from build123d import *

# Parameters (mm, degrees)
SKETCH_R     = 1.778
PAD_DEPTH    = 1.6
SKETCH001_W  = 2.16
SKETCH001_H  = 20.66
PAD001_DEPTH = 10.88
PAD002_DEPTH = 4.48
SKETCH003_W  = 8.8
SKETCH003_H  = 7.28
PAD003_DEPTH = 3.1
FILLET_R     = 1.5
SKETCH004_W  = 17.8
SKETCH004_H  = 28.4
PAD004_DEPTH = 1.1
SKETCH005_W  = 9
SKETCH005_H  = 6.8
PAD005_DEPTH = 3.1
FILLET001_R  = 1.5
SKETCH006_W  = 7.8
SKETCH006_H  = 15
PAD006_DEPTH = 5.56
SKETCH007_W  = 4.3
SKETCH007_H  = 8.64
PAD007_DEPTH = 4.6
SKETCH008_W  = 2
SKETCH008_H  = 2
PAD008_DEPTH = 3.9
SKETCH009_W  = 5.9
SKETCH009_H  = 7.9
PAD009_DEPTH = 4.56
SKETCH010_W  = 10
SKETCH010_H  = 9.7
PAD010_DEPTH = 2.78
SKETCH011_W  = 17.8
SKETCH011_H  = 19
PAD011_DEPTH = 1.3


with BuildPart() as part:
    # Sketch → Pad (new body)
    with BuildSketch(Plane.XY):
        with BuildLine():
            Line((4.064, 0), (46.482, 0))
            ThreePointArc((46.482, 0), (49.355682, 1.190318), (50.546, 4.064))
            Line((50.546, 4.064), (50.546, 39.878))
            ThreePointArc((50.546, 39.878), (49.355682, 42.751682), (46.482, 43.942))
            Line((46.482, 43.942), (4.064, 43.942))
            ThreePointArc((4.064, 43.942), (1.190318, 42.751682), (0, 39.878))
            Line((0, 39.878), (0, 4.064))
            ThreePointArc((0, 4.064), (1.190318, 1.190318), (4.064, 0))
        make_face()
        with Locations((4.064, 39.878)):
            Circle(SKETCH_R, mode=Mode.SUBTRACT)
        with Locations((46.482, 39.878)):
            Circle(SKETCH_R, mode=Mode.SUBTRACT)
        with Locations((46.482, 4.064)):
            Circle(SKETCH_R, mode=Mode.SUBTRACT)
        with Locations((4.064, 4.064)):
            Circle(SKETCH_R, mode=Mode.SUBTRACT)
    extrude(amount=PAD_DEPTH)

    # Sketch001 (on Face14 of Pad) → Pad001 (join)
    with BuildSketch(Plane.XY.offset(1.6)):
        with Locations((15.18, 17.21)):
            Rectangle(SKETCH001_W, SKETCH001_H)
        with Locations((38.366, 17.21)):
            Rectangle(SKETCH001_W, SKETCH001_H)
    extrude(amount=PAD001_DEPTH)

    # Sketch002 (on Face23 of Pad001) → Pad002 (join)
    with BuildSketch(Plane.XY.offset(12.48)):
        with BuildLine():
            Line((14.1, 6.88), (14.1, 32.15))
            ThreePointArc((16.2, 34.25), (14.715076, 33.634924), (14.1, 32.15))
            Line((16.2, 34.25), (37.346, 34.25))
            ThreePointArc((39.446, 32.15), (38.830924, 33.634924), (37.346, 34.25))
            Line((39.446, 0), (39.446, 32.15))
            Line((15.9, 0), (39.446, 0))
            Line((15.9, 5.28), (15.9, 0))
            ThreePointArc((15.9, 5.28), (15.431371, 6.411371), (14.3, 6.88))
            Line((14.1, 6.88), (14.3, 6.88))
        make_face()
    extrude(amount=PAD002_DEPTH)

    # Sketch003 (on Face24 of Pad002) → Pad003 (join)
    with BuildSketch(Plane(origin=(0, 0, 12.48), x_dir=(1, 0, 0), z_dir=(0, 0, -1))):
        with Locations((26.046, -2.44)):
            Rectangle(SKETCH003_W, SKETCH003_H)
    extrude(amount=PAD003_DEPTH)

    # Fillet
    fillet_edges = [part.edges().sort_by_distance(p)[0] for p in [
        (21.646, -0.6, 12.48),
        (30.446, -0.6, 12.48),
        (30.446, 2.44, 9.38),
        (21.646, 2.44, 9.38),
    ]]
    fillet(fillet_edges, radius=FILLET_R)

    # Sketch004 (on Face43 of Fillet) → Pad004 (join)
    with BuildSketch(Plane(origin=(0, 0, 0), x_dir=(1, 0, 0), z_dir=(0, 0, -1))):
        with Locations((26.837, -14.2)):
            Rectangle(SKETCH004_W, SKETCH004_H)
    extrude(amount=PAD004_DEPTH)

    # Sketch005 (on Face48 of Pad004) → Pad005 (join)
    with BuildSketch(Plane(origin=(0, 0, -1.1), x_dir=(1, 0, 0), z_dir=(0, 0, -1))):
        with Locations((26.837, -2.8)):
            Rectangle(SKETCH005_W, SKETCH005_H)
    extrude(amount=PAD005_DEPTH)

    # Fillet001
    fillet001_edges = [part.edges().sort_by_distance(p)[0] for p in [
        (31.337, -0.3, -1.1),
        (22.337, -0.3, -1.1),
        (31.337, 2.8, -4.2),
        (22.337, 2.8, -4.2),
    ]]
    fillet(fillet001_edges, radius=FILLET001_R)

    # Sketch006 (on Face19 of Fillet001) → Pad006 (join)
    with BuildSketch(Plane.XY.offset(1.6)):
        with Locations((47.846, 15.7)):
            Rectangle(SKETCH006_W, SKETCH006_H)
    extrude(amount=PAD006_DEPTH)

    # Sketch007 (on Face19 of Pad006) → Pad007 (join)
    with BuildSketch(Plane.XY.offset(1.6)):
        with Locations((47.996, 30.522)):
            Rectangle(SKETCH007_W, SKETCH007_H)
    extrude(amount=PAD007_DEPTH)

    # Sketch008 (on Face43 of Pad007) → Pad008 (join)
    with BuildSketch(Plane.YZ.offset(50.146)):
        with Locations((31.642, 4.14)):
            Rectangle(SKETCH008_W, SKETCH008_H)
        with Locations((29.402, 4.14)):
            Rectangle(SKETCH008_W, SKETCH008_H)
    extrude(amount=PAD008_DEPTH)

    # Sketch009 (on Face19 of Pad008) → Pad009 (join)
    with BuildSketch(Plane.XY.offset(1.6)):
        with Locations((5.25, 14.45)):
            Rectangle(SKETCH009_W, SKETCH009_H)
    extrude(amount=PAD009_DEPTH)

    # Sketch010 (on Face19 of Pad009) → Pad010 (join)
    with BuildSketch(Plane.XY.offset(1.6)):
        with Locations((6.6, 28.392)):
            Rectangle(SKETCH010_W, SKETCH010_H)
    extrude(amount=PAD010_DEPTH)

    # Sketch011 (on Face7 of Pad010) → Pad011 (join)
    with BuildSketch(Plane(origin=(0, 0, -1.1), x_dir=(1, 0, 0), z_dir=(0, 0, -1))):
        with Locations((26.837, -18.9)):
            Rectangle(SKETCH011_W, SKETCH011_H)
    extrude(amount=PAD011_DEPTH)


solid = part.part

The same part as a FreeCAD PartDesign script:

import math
import FreeCAD as App
import Part
import Sketcher
from FreeCAD import Vector
Q = App.Units.Quantity


def edges_at(feature, points):
    """Names of the edges that pass closest to the given points."""
    edges = feature.Shape.Edges
    near = lambda p: min(range(len(edges)), key=lambda i: edges[i].distToShape(Part.Vertex(*p))[0])
    return sorted({f"Edge{near(p) + 1}" for p in points})


def add_polygon(sketch, points):
    """Adds a closed chain of lines whose ends are joined by coincident constraints."""
    first, n = sketch.GeometryCount, len(points)
    for a, b in zip(points, points[1:] + points[:1]):
        sketch.addGeometry(Part.LineSegment(App.Vector(*a, 0), App.Vector(*b, 0)), False)
    for i in range(n):
        sketch.addConstraint(Sketcher.Constraint("Coincident", first + i, 2, first + (i + 1) % n, 1))

doc = App.newDocument("Part")
body = doc.addObject("PartDesign::Body", "Body")

sketch1 = body.newObject("Sketcher::SketchObject", "Sketch")
sketch1.AttachmentSupport = (doc.getObject("XY_Plane"), [""])
sketch1.MapMode = "FlatFace"
sketch1.addGeometry([
    Part.LineSegment(Vector(4.1, 0, 0), Vector(46.5, 0, 0)),
    Part.ArcOfCircle(Part.Circle(Vector(46.5, 4.1, 0), Vector(0, 0, 1), 4.1), math.radians(-90), math.radians(0)),
    Part.LineSegment(Vector(50.5, 4.1, 0), Vector(50.5, 39.9, 0)),
    Part.ArcOfCircle(Part.Circle(Vector(46.5, 39.9, 0), Vector(0, 0, 1), 4.1), math.radians(0), math.radians(90)),
    Part.LineSegment(Vector(46.5, 43.9, 0), Vector(4.1, 43.9, 0)),
    Part.ArcOfCircle(Part.Circle(Vector(4.1, 39.9, 0), Vector(0, 0, 1), 4.1), math.radians(90), math.radians(180)),
    Part.LineSegment(Vector(0, 39.9, 0), Vector(0, 4.1, 0)),
    Part.ArcOfCircle(Part.Circle(Vector(4.1, 4.1, 0), Vector(0, 0, 1), 4.1), math.radians(180), math.radians(270)),
    Part.Circle(Vector(4.1, 4.1, 0), Vector(0, 0, 1), 1.8),
    Part.Circle(Vector(46.5, 4.1, 0), Vector(0, 0, 1), 1.8),
    Part.Circle(Vector(4.1, 39.9, 0), Vector(0, 0, 1), 1.8),
    Part.Circle(Vector(46.5, 39.9, 0), Vector(0, 0, 1), 1.8),
], False)
sketch1.addConstraint([
    Sketcher.Constraint("Tangent", 0, 2, 1, 1),
    Sketcher.Constraint("Tangent", 1, 2, 2, 1),
    Sketcher.Constraint("Tangent", 2, 2, 3, 1),
    Sketcher.Constraint("Tangent", 3, 2, 4, 1),
    Sketcher.Constraint("Tangent", 4, 2, 5, 1),
    Sketcher.Constraint("Tangent", 5, 2, 6, 1),
    Sketcher.Constraint("Tangent", 6, 2, 7, 1),
    Sketcher.Constraint("Tangent", 7, 2, 0, 1),
    Sketcher.Constraint("Horizontal", 0),
    Sketcher.Constraint("Vertical", 2),
    Sketcher.Constraint("Horizontal", 4),
    Sketcher.Constraint("Vertical", 6),
    Sketcher.Constraint("Coincident", 8, 3, 7, 3),
    Sketcher.Constraint("Coincident", 9, 3, 1, 3),
    Sketcher.Constraint("Coincident", 10, 3, 5, 3),
    Sketcher.Constraint("Coincident", 11, 3, 3, 3),
    Sketcher.Constraint("Equal", 1, 3),
    Sketcher.Constraint("Equal", 3, 5),
    Sketcher.Constraint("Equal", 5, 7),
    Sketcher.Constraint("Equal", 8, 9),
    Sketcher.Constraint("Equal", 9, 10),
    Sketcher.Constraint("Equal", 10, 11),
    Sketcher.Constraint("PointOnObject", 0, 2, -1),
    Sketcher.Constraint("PointOnObject", 5, 2, -2),
    Sketcher.Constraint("Diameter", 8, Q("3.556 mm")),
    Sketcher.Constraint("Radius", 1, Q("4.064 mm")),
    Sketcher.Constraint("DistanceX", 0, 1, 0, 2, Q("42.418 mm")),
    Sketcher.Constraint("DistanceY", 2, 1, 2, 2, Q("35.814 mm")),
])
pad1 = body.newObject("PartDesign::Pad", "Pad")
pad1.Profile = sketch1
pad1.Length = 1.6

sketch2 = body.newObject("Sketcher::SketchObject", "Sketch001")
sketch2.AttachmentSupport = (doc.getObject("XY_Plane"), [""])
sketch2.MapMode = "FlatFace"
sketch2.AttachmentOffset = App.Placement(Vector(0, 0, 1.6), App.Rotation())
add_polygon(sketch2, [(14.1, 27.5), (14.1, 6.9), (16.3, 6.9), (16.3, 27.5)])
add_polygon(sketch2, [(37.3, 27.5), (37.3, 6.9), (39.4, 6.9), (39.4, 27.5)])
sketch2.addConstraint([
    Sketcher.Constraint("Vertical", 0),
    Sketcher.Constraint("Horizontal", 1),
    Sketcher.Constraint("Vertical", 2),
    Sketcher.Constraint("Horizontal", 3),
    Sketcher.Constraint("Vertical", 4),
    Sketcher.Constraint("Horizontal", 5),
    Sketcher.Constraint("Vertical", 6),
    Sketcher.Constraint("Horizontal", 7),
    Sketcher.Constraint("Horizontal", 1, 2, 4, 2),
    Sketcher.Constraint("Horizontal", 3, 2, 6, 2),
    Sketcher.Constraint("Equal", 3, 5),
    Sketcher.Constraint("DistanceX", 1, 1, 1, 2, Q("2.16 mm")),
    Sketcher.Constraint("DistanceY", 0, 2, 0, 1, Q("20.66 mm")),
    Sketcher.Constraint("DistanceX", -1, 1, 0, 2, Q("14.1 mm")),
    Sketcher.Constraint("DistanceY", -1, 1, 0, 2, Q("6.88 mm")),
    Sketcher.Constraint("DistanceX", -1, 1, 4, 2, Q("37.286 mm")),
])
pad2 = body.newObject("PartDesign::Pad", "Pad001")
pad2.Profile = sketch2
pad2.Length = 10.88

sketch3 = body.newObject("Sketcher::SketchObject", "Sketch002")
sketch3.AttachmentSupport = (doc.getObject("XY_Plane"), [""])
sketch3.MapMode = "FlatFace"
sketch3.AttachmentOffset = App.Placement(Vector(0, 0, 12.48), App.Rotation())
sketch3.addGeometry([
    Part.LineSegment(Vector(14.1, 32.15, 0), Vector(14.1, 6.88, 0)),
    Part.LineSegment(Vector(14.1, 6.88, 0), Vector(14.3, 6.88, 0)),
    Part.ArcOfCircle(Part.Circle(Vector(14.3, 5.28, 0), Vector(0, 0, 1), 1.6), math.radians(0), math.radians(90)),
    Part.LineSegment(Vector(15.9, 5.28, 0), Vector(15.9, 0, 0)),
    Part.LineSegment(Vector(15.9, 0, 0), Vector(39.45, 0, 0)),
    Part.LineSegment(Vector(39.45, 0, 0), Vector(39.45, 32.15, 0)),
    Part.ArcOfCircle(Part.Circle(Vector(37.35, 32.15, 0), Vector(0, 0, 1), 2.1), math.radians(0), math.radians(90)),
    Part.LineSegment(Vector(37.35, 34.25, 0), Vector(16.2, 34.25, 0)),
    Part.ArcOfCircle(Part.Circle(Vector(16.2, 32.15, 0), Vector(0, 0, 1), 2.1), math.radians(90), math.radians(180)),
], False)
sketch3.addConstraint([
    Sketcher.Constraint("Coincident", 0, 2, 1, 1),
    Sketcher.Constraint("Tangent", 1, 2, 2, 2),
    Sketcher.Constraint("Tangent", 2, 1, 3, 1),
    Sketcher.Constraint("Coincident", 3, 2, 4, 1),
    Sketcher.Constraint("Coincident", 4, 2, 5, 1),
    Sketcher.Constraint("Tangent", 5, 2, 6, 1),
    Sketcher.Constraint("Tangent", 6, 2, 7, 1),
    Sketcher.Constraint("Tangent", 7, 2, 8, 1),
    Sketcher.Constraint("Tangent", 8, 2, 0, 1),
    Sketcher.Constraint("Vertical", 0),
    Sketcher.Constraint("Horizontal", 1),
    Sketcher.Constraint("Vertical", 3),
    Sketcher.Constraint("Horizontal", 4),
    Sketcher.Constraint("Vertical", 5),
    Sketcher.Constraint("Horizontal", 7),
    Sketcher.Constraint("Equal", 6, 8),
    Sketcher.Constraint("PointOnObject", 3, 2, -1),
    Sketcher.Constraint("Radius", 2, Q("1.599999 mm")),
    Sketcher.Constraint("Radius", 6, Q("2.100001 mm")),
    Sketcher.Constraint("DistanceX", 1, 1, 1, 2, Q("0.2 mm")),
    Sketcher.Constraint("DistanceY", 0, 2, 0, 1, Q("25.27 mm")),
    Sketcher.Constraint("DistanceY", 3, 2, 3, 1, Q("5.28 mm")),
    Sketcher.Constraint("DistanceX", -1, 1, 2, 3, Q("14.300001 mm")),
    Sketcher.Constraint("DistanceX", 4, 1, 4, 2, Q("23.546 mm")),
])
pad3 = body.newObject("PartDesign::Pad", "Pad002")
pad3.Profile = sketch3
pad3.Length = 4.48

sketch4 = body.newObject("Sketcher::SketchObject", "Sketch003")
sketch4.AttachmentSupport = (doc.getObject("XY_Plane"), [""])
sketch4.MapMode = "FlatFace"
sketch4.AttachmentOffset = App.Placement(Vector(0, 0, 12.48), App.Rotation())
add_polygon(sketch4, [(22, -1), (22, 6), (30, 6), (30, -1)])
sketch4.addConstraint([
    Sketcher.Constraint("Vertical", 0),
    Sketcher.Constraint("Horizontal", 1),
    Sketcher.Constraint("Vertical", 2),
    Sketcher.Constraint("Horizontal", 3),
    Sketcher.Constraint("DistanceX", 1, 1, 1, 2, Q("8.8 mm")),
    Sketcher.Constraint("DistanceY", 0, 1, 0, 2, Q("7.28 mm")),
    Sketcher.Constraint("DistanceY", 2, 2, -1, 1, Q("1.2 mm")),
    Sketcher.Constraint("DistanceX", -1, 1, 0, 2, Q("21.646 mm")),
])
pad4 = body.newObject("PartDesign::Pad", "Pad003")
pad4.Profile = sketch4
pad4.Length = 3.1
pad4.Reversed = True
doc.recompute()

fillet = body.newObject("PartDesign::Fillet", "Fillet")
fillet.Base = (pad4, edges_at(pad4, [
    (21.646, -0.6, 12.48),
    (30.446, -0.6, 12.48),
    (30.446, 2.44, 9.38),
    (21.646, 2.44, 9.38),
]))
fillet.Radius = 1.5

sketch5 = body.newObject("Sketcher::SketchObject", "Sketch004")
sketch5.AttachmentSupport = (doc.getObject("XY_Plane"), [""])
sketch5.MapMode = "FlatFace"
add_polygon(sketch5, [(18, 0), (18, 28), (36, 28), (36, 0)])
sketch5.addConstraint([
    Sketcher.Constraint("Vertical", 0),
    Sketcher.Constraint("Horizontal", 1),
    Sketcher.Constraint("Vertical", 2),
    Sketcher.Constraint("Horizontal", 3),
    Sketcher.Constraint("PointOnObject", 2, 2, -1),
    Sketcher.Constraint("DistanceX", 1, 1, 1, 2, Q("17.8 mm")),
    Sketcher.Constraint("DistanceY", 0, 1, 0, 2, Q("28.4 mm")),
    Sketcher.Constraint("DistanceX", -1, 1, 0, 2, Q("17.937 mm")),
])
pad5 = body.newObject("PartDesign::Pad", "Pad004")
pad5.Profile = sketch5
pad5.Length = 1.1
pad5.Reversed = True

sketch6 = body.newObject("Sketcher::SketchObject", "Sketch005")
sketch6.AttachmentSupport = (doc.getObject("XY_Plane"), [""])
sketch6.MapMode = "FlatFace"
sketch6.AttachmentOffset = App.Placement(Vector(0, 0, -1.1), App.Rotation())
add_polygon(sketch6, [(22, -1), (22, 6), (31, 6), (31, -1)])
sketch6.addConstraint([
    Sketcher.Constraint("Vertical", 0),
    Sketcher.Constraint("Horizontal", 1),
    Sketcher.Constraint("Vertical", 2),
    Sketcher.Constraint("Horizontal", 3),
    Sketcher.Constraint("DistanceX", 1, 1, 1, 2, Q("9 mm")),
    Sketcher.Constraint("DistanceY", 0, 1, 0, 2, Q("6.8 mm")),
    Sketcher.Constraint("DistanceY", -1, 1, 0, 2, Q("6.2 mm")),
    Sketcher.Constraint("DistanceX", -1, 1, 0, 2, Q("22.337 mm")),
])
pad6 = body.newObject("PartDesign::Pad", "Pad005")
pad6.Profile = sketch6
pad6.Length = 3.1
pad6.Reversed = True
doc.recompute()

fillet2 = body.newObject("PartDesign::Fillet", "Fillet001")
fillet2.Base = (pad6, edges_at(pad6, [
    (31.337, -0.3, -1.1),
    (22.337, -0.3, -1.1),
    (31.337, 2.8, -4.2),
    (22.337, 2.8, -4.2),
]))
fillet2.Radius = 1.5

sketch7 = body.newObject("Sketcher::SketchObject", "Sketch006")
sketch7.AttachmentSupport = (doc.getObject("XY_Plane"), [""])
sketch7.MapMode = "FlatFace"
sketch7.AttachmentOffset = App.Placement(Vector(0, 0, 1.6), App.Rotation())
add_polygon(sketch7, [(44, 23), (44, 8), (52, 8), (52, 23)])
sketch7.addConstraint([
    Sketcher.Constraint("Vertical", 0),
    Sketcher.Constraint("Horizontal", 1),
    Sketcher.Constraint("Vertical", 2),
    Sketcher.Constraint("Horizontal", 3),
    Sketcher.Constraint("DistanceY", 0, 2, 0, 1, Q("15 mm")),
    Sketcher.Constraint("DistanceX", 1, 1, 1, 2, Q("7.8 mm")),
    Sketcher.Constraint("DistanceY", -1, 1, 0, 2, Q("8.2 mm")),
    Sketcher.Constraint("DistanceX", -1, 1, 0, 2, Q("43.946 mm")),
])
pad7 = body.newObject("PartDesign::Pad", "Pad006")
pad7.Profile = sketch7
pad7.Length = 5.56

sketch8 = body.newObject("Sketcher::SketchObject", "Sketch007")
sketch8.AttachmentSupport = (doc.getObject("XY_Plane"), [""])
sketch8.MapMode = "FlatFace"
sketch8.AttachmentOffset = App.Placement(Vector(0, 0, 1.6), App.Rotation())
add_polygon(sketch8, [(45.8, 34.8), (45.8, 26.2), (50.1, 26.2), (50.1, 34.8)])
sketch8.addConstraint([
    Sketcher.Constraint("Vertical", 0),
    Sketcher.Constraint("Horizontal", 1),
    Sketcher.Constraint("Vertical", 2),
    Sketcher.Constraint("Horizontal", 3),
    Sketcher.Constraint("DistanceX", 1, 1, 1, 2, Q("4.3 mm")),
    Sketcher.Constraint("DistanceY", 0, 2, 0, 1, Q("8.64 mm")),
    Sketcher.Constraint("DistanceX", -1, 1, 0, 2, Q("45.846 mm")),
    Sketcher.Constraint("DistanceY", -1, 1, 0, 2, Q("26.202 mm")),
])
pad8 = body.newObject("PartDesign::Pad", "Pad007")
pad8.Profile = sketch8
pad8.Length = 4.6

sketch9 = body.newObject("Sketcher::SketchObject", "Sketch008")
sketch9.AttachmentSupport = (doc.getObject("YZ_Plane"), [""])
sketch9.MapMode = "FlatFace"
sketch9.AttachmentOffset = App.Placement(Vector(0, 0, 50.146), App.Rotation())
add_polygon(sketch9, [(30.6, 5.1), (30.6, 3.1), (32.6, 3.1), (32.6, 5.1)])
add_polygon(sketch9, [(28.4, 5.1), (28.4, 3.1), (30.4, 3.1), (30.4, 5.1)])
sketch9.addConstraint([
    Sketcher.Constraint("Vertical", 0),
    Sketcher.Constraint("Horizontal", 1),
    Sketcher.Constraint("Vertical", 2),
    Sketcher.Constraint("Horizontal", 3),
    Sketcher.Constraint("Vertical", 4),
    Sketcher.Constraint("Horizontal", 5),
    Sketcher.Constraint("Vertical", 6),
    Sketcher.Constraint("Horizontal", 7),
    Sketcher.Constraint("Horizontal", 1, 2, 4, 2),
    Sketcher.Constraint("Horizontal", 3, 2, 6, 2),
    Sketcher.Constraint("Equal", 3, 5),
    Sketcher.Constraint("Equal", 7, 0),
    Sketcher.Constraint("DistanceX", 1, 1, 1, 2, Q("2 mm")),
    Sketcher.Constraint("DistanceY", -1, 1, 0, 2, Q("3.14 mm")),
    Sketcher.Constraint("DistanceX", 4, 2, 0, 2, Q("2.24 mm")),
    Sketcher.Constraint("DistanceX", -1, 1, 0, 2, Q("30.642 mm")),
])
pad9 = body.newObject("PartDesign::Pad", "Pad008")
pad9.Profile = sketch9
pad9.Length = 3.9

sketch10 = body.newObject("Sketcher::SketchObject", "Sketch009")
sketch10.AttachmentSupport = (doc.getObject("XY_Plane"), [""])
sketch10.MapMode = "FlatFace"
sketch10.AttachmentOffset = App.Placement(Vector(0, 0, 1.6), App.Rotation())
add_polygon(sketch10, [(2, 18), (2, 10), (8, 10), (8, 18)])
sketch10.addConstraint([
    Sketcher.Constraint("Vertical", 0),
    Sketcher.Constraint("Horizontal", 1),
    Sketcher.Constraint("Vertical", 2),
    Sketcher.Constraint("Horizontal", 3),
    Sketcher.Constraint("DistanceX", 1, 1, 1, 2, Q("5.9 mm")),
    Sketcher.Constraint("DistanceY", 0, 2, 0, 1, Q("7.9 mm")),
    Sketcher.Constraint("DistanceX", -1, 1, 0, 2, Q("2.3 mm")),
    Sketcher.Constraint("DistanceY", -1, 1, 0, 2, Q("10.5 mm")),
])
pad10 = body.newObject("PartDesign::Pad", "Pad009")
pad10.Profile = sketch10
pad10.Length = 4.56

sketch11 = body.newObject("Sketcher::SketchObject", "Sketch010")
sketch11.AttachmentSupport = (doc.getObject("XY_Plane"), [""])
sketch11.MapMode = "FlatFace"
sketch11.AttachmentOffset = App.Placement(Vector(0, 0, 1.6), App.Rotation())
add_polygon(sketch11, [(2, 33), (2, 24), (12, 24), (12, 33)])
sketch11.addConstraint([
    Sketcher.Constraint("Vertical", 0),
    Sketcher.Constraint("Horizontal", 1),
    Sketcher.Constraint("Vertical", 2),
    Sketcher.Constraint("Horizontal", 3),
    Sketcher.Constraint("DistanceX", 1, 1, 1, 2, Q("10 mm")),
    Sketcher.Constraint("DistanceY", 0, 2, 0, 1, Q("9.7 mm")),
    Sketcher.Constraint("DistanceX", -1, 1, 0, 2, Q("1.6 mm")),
    Sketcher.Constraint("DistanceY", -1, 1, 0, 2, Q("23.542 mm")),
])
pad11 = body.newObject("PartDesign::Pad", "Pad010")
pad11.Profile = sketch11
pad11.Length = 2.78

sketch12 = body.newObject("Sketcher::SketchObject", "Sketch011")
sketch12.AttachmentSupport = (doc.getObject("XY_Plane"), [""])
sketch12.MapMode = "FlatFace"
sketch12.AttachmentOffset = App.Placement(Vector(0, 0, -1.1), App.Rotation())
add_polygon(sketch12, [(18, 9), (18, 28), (36, 28), (36, 9)])
sketch12.addConstraint([
    Sketcher.Constraint("Vertical", 0),
    Sketcher.Constraint("Horizontal", 1),
    Sketcher.Constraint("Vertical", 2),
    Sketcher.Constraint("Horizontal", 3),
    Sketcher.Constraint("DistanceY", 0, 1, 0, 2, Q("19 mm")),
    Sketcher.Constraint("DistanceX", 1, 1, 1, 2, Q("17.8 mm")),
    Sketcher.Constraint("DistanceY", -1, 1, 0, 2, Q("28.4 mm")),
    Sketcher.Constraint("DistanceX", -1, 1, 0, 2, Q("17.937 mm")),
])
pad12 = body.newObject("PartDesign::Pad", "Pad011")
pad12.Profile = sketch12
pad12.Length = 1.3
pad12.Reversed = True

doc.recompute()
